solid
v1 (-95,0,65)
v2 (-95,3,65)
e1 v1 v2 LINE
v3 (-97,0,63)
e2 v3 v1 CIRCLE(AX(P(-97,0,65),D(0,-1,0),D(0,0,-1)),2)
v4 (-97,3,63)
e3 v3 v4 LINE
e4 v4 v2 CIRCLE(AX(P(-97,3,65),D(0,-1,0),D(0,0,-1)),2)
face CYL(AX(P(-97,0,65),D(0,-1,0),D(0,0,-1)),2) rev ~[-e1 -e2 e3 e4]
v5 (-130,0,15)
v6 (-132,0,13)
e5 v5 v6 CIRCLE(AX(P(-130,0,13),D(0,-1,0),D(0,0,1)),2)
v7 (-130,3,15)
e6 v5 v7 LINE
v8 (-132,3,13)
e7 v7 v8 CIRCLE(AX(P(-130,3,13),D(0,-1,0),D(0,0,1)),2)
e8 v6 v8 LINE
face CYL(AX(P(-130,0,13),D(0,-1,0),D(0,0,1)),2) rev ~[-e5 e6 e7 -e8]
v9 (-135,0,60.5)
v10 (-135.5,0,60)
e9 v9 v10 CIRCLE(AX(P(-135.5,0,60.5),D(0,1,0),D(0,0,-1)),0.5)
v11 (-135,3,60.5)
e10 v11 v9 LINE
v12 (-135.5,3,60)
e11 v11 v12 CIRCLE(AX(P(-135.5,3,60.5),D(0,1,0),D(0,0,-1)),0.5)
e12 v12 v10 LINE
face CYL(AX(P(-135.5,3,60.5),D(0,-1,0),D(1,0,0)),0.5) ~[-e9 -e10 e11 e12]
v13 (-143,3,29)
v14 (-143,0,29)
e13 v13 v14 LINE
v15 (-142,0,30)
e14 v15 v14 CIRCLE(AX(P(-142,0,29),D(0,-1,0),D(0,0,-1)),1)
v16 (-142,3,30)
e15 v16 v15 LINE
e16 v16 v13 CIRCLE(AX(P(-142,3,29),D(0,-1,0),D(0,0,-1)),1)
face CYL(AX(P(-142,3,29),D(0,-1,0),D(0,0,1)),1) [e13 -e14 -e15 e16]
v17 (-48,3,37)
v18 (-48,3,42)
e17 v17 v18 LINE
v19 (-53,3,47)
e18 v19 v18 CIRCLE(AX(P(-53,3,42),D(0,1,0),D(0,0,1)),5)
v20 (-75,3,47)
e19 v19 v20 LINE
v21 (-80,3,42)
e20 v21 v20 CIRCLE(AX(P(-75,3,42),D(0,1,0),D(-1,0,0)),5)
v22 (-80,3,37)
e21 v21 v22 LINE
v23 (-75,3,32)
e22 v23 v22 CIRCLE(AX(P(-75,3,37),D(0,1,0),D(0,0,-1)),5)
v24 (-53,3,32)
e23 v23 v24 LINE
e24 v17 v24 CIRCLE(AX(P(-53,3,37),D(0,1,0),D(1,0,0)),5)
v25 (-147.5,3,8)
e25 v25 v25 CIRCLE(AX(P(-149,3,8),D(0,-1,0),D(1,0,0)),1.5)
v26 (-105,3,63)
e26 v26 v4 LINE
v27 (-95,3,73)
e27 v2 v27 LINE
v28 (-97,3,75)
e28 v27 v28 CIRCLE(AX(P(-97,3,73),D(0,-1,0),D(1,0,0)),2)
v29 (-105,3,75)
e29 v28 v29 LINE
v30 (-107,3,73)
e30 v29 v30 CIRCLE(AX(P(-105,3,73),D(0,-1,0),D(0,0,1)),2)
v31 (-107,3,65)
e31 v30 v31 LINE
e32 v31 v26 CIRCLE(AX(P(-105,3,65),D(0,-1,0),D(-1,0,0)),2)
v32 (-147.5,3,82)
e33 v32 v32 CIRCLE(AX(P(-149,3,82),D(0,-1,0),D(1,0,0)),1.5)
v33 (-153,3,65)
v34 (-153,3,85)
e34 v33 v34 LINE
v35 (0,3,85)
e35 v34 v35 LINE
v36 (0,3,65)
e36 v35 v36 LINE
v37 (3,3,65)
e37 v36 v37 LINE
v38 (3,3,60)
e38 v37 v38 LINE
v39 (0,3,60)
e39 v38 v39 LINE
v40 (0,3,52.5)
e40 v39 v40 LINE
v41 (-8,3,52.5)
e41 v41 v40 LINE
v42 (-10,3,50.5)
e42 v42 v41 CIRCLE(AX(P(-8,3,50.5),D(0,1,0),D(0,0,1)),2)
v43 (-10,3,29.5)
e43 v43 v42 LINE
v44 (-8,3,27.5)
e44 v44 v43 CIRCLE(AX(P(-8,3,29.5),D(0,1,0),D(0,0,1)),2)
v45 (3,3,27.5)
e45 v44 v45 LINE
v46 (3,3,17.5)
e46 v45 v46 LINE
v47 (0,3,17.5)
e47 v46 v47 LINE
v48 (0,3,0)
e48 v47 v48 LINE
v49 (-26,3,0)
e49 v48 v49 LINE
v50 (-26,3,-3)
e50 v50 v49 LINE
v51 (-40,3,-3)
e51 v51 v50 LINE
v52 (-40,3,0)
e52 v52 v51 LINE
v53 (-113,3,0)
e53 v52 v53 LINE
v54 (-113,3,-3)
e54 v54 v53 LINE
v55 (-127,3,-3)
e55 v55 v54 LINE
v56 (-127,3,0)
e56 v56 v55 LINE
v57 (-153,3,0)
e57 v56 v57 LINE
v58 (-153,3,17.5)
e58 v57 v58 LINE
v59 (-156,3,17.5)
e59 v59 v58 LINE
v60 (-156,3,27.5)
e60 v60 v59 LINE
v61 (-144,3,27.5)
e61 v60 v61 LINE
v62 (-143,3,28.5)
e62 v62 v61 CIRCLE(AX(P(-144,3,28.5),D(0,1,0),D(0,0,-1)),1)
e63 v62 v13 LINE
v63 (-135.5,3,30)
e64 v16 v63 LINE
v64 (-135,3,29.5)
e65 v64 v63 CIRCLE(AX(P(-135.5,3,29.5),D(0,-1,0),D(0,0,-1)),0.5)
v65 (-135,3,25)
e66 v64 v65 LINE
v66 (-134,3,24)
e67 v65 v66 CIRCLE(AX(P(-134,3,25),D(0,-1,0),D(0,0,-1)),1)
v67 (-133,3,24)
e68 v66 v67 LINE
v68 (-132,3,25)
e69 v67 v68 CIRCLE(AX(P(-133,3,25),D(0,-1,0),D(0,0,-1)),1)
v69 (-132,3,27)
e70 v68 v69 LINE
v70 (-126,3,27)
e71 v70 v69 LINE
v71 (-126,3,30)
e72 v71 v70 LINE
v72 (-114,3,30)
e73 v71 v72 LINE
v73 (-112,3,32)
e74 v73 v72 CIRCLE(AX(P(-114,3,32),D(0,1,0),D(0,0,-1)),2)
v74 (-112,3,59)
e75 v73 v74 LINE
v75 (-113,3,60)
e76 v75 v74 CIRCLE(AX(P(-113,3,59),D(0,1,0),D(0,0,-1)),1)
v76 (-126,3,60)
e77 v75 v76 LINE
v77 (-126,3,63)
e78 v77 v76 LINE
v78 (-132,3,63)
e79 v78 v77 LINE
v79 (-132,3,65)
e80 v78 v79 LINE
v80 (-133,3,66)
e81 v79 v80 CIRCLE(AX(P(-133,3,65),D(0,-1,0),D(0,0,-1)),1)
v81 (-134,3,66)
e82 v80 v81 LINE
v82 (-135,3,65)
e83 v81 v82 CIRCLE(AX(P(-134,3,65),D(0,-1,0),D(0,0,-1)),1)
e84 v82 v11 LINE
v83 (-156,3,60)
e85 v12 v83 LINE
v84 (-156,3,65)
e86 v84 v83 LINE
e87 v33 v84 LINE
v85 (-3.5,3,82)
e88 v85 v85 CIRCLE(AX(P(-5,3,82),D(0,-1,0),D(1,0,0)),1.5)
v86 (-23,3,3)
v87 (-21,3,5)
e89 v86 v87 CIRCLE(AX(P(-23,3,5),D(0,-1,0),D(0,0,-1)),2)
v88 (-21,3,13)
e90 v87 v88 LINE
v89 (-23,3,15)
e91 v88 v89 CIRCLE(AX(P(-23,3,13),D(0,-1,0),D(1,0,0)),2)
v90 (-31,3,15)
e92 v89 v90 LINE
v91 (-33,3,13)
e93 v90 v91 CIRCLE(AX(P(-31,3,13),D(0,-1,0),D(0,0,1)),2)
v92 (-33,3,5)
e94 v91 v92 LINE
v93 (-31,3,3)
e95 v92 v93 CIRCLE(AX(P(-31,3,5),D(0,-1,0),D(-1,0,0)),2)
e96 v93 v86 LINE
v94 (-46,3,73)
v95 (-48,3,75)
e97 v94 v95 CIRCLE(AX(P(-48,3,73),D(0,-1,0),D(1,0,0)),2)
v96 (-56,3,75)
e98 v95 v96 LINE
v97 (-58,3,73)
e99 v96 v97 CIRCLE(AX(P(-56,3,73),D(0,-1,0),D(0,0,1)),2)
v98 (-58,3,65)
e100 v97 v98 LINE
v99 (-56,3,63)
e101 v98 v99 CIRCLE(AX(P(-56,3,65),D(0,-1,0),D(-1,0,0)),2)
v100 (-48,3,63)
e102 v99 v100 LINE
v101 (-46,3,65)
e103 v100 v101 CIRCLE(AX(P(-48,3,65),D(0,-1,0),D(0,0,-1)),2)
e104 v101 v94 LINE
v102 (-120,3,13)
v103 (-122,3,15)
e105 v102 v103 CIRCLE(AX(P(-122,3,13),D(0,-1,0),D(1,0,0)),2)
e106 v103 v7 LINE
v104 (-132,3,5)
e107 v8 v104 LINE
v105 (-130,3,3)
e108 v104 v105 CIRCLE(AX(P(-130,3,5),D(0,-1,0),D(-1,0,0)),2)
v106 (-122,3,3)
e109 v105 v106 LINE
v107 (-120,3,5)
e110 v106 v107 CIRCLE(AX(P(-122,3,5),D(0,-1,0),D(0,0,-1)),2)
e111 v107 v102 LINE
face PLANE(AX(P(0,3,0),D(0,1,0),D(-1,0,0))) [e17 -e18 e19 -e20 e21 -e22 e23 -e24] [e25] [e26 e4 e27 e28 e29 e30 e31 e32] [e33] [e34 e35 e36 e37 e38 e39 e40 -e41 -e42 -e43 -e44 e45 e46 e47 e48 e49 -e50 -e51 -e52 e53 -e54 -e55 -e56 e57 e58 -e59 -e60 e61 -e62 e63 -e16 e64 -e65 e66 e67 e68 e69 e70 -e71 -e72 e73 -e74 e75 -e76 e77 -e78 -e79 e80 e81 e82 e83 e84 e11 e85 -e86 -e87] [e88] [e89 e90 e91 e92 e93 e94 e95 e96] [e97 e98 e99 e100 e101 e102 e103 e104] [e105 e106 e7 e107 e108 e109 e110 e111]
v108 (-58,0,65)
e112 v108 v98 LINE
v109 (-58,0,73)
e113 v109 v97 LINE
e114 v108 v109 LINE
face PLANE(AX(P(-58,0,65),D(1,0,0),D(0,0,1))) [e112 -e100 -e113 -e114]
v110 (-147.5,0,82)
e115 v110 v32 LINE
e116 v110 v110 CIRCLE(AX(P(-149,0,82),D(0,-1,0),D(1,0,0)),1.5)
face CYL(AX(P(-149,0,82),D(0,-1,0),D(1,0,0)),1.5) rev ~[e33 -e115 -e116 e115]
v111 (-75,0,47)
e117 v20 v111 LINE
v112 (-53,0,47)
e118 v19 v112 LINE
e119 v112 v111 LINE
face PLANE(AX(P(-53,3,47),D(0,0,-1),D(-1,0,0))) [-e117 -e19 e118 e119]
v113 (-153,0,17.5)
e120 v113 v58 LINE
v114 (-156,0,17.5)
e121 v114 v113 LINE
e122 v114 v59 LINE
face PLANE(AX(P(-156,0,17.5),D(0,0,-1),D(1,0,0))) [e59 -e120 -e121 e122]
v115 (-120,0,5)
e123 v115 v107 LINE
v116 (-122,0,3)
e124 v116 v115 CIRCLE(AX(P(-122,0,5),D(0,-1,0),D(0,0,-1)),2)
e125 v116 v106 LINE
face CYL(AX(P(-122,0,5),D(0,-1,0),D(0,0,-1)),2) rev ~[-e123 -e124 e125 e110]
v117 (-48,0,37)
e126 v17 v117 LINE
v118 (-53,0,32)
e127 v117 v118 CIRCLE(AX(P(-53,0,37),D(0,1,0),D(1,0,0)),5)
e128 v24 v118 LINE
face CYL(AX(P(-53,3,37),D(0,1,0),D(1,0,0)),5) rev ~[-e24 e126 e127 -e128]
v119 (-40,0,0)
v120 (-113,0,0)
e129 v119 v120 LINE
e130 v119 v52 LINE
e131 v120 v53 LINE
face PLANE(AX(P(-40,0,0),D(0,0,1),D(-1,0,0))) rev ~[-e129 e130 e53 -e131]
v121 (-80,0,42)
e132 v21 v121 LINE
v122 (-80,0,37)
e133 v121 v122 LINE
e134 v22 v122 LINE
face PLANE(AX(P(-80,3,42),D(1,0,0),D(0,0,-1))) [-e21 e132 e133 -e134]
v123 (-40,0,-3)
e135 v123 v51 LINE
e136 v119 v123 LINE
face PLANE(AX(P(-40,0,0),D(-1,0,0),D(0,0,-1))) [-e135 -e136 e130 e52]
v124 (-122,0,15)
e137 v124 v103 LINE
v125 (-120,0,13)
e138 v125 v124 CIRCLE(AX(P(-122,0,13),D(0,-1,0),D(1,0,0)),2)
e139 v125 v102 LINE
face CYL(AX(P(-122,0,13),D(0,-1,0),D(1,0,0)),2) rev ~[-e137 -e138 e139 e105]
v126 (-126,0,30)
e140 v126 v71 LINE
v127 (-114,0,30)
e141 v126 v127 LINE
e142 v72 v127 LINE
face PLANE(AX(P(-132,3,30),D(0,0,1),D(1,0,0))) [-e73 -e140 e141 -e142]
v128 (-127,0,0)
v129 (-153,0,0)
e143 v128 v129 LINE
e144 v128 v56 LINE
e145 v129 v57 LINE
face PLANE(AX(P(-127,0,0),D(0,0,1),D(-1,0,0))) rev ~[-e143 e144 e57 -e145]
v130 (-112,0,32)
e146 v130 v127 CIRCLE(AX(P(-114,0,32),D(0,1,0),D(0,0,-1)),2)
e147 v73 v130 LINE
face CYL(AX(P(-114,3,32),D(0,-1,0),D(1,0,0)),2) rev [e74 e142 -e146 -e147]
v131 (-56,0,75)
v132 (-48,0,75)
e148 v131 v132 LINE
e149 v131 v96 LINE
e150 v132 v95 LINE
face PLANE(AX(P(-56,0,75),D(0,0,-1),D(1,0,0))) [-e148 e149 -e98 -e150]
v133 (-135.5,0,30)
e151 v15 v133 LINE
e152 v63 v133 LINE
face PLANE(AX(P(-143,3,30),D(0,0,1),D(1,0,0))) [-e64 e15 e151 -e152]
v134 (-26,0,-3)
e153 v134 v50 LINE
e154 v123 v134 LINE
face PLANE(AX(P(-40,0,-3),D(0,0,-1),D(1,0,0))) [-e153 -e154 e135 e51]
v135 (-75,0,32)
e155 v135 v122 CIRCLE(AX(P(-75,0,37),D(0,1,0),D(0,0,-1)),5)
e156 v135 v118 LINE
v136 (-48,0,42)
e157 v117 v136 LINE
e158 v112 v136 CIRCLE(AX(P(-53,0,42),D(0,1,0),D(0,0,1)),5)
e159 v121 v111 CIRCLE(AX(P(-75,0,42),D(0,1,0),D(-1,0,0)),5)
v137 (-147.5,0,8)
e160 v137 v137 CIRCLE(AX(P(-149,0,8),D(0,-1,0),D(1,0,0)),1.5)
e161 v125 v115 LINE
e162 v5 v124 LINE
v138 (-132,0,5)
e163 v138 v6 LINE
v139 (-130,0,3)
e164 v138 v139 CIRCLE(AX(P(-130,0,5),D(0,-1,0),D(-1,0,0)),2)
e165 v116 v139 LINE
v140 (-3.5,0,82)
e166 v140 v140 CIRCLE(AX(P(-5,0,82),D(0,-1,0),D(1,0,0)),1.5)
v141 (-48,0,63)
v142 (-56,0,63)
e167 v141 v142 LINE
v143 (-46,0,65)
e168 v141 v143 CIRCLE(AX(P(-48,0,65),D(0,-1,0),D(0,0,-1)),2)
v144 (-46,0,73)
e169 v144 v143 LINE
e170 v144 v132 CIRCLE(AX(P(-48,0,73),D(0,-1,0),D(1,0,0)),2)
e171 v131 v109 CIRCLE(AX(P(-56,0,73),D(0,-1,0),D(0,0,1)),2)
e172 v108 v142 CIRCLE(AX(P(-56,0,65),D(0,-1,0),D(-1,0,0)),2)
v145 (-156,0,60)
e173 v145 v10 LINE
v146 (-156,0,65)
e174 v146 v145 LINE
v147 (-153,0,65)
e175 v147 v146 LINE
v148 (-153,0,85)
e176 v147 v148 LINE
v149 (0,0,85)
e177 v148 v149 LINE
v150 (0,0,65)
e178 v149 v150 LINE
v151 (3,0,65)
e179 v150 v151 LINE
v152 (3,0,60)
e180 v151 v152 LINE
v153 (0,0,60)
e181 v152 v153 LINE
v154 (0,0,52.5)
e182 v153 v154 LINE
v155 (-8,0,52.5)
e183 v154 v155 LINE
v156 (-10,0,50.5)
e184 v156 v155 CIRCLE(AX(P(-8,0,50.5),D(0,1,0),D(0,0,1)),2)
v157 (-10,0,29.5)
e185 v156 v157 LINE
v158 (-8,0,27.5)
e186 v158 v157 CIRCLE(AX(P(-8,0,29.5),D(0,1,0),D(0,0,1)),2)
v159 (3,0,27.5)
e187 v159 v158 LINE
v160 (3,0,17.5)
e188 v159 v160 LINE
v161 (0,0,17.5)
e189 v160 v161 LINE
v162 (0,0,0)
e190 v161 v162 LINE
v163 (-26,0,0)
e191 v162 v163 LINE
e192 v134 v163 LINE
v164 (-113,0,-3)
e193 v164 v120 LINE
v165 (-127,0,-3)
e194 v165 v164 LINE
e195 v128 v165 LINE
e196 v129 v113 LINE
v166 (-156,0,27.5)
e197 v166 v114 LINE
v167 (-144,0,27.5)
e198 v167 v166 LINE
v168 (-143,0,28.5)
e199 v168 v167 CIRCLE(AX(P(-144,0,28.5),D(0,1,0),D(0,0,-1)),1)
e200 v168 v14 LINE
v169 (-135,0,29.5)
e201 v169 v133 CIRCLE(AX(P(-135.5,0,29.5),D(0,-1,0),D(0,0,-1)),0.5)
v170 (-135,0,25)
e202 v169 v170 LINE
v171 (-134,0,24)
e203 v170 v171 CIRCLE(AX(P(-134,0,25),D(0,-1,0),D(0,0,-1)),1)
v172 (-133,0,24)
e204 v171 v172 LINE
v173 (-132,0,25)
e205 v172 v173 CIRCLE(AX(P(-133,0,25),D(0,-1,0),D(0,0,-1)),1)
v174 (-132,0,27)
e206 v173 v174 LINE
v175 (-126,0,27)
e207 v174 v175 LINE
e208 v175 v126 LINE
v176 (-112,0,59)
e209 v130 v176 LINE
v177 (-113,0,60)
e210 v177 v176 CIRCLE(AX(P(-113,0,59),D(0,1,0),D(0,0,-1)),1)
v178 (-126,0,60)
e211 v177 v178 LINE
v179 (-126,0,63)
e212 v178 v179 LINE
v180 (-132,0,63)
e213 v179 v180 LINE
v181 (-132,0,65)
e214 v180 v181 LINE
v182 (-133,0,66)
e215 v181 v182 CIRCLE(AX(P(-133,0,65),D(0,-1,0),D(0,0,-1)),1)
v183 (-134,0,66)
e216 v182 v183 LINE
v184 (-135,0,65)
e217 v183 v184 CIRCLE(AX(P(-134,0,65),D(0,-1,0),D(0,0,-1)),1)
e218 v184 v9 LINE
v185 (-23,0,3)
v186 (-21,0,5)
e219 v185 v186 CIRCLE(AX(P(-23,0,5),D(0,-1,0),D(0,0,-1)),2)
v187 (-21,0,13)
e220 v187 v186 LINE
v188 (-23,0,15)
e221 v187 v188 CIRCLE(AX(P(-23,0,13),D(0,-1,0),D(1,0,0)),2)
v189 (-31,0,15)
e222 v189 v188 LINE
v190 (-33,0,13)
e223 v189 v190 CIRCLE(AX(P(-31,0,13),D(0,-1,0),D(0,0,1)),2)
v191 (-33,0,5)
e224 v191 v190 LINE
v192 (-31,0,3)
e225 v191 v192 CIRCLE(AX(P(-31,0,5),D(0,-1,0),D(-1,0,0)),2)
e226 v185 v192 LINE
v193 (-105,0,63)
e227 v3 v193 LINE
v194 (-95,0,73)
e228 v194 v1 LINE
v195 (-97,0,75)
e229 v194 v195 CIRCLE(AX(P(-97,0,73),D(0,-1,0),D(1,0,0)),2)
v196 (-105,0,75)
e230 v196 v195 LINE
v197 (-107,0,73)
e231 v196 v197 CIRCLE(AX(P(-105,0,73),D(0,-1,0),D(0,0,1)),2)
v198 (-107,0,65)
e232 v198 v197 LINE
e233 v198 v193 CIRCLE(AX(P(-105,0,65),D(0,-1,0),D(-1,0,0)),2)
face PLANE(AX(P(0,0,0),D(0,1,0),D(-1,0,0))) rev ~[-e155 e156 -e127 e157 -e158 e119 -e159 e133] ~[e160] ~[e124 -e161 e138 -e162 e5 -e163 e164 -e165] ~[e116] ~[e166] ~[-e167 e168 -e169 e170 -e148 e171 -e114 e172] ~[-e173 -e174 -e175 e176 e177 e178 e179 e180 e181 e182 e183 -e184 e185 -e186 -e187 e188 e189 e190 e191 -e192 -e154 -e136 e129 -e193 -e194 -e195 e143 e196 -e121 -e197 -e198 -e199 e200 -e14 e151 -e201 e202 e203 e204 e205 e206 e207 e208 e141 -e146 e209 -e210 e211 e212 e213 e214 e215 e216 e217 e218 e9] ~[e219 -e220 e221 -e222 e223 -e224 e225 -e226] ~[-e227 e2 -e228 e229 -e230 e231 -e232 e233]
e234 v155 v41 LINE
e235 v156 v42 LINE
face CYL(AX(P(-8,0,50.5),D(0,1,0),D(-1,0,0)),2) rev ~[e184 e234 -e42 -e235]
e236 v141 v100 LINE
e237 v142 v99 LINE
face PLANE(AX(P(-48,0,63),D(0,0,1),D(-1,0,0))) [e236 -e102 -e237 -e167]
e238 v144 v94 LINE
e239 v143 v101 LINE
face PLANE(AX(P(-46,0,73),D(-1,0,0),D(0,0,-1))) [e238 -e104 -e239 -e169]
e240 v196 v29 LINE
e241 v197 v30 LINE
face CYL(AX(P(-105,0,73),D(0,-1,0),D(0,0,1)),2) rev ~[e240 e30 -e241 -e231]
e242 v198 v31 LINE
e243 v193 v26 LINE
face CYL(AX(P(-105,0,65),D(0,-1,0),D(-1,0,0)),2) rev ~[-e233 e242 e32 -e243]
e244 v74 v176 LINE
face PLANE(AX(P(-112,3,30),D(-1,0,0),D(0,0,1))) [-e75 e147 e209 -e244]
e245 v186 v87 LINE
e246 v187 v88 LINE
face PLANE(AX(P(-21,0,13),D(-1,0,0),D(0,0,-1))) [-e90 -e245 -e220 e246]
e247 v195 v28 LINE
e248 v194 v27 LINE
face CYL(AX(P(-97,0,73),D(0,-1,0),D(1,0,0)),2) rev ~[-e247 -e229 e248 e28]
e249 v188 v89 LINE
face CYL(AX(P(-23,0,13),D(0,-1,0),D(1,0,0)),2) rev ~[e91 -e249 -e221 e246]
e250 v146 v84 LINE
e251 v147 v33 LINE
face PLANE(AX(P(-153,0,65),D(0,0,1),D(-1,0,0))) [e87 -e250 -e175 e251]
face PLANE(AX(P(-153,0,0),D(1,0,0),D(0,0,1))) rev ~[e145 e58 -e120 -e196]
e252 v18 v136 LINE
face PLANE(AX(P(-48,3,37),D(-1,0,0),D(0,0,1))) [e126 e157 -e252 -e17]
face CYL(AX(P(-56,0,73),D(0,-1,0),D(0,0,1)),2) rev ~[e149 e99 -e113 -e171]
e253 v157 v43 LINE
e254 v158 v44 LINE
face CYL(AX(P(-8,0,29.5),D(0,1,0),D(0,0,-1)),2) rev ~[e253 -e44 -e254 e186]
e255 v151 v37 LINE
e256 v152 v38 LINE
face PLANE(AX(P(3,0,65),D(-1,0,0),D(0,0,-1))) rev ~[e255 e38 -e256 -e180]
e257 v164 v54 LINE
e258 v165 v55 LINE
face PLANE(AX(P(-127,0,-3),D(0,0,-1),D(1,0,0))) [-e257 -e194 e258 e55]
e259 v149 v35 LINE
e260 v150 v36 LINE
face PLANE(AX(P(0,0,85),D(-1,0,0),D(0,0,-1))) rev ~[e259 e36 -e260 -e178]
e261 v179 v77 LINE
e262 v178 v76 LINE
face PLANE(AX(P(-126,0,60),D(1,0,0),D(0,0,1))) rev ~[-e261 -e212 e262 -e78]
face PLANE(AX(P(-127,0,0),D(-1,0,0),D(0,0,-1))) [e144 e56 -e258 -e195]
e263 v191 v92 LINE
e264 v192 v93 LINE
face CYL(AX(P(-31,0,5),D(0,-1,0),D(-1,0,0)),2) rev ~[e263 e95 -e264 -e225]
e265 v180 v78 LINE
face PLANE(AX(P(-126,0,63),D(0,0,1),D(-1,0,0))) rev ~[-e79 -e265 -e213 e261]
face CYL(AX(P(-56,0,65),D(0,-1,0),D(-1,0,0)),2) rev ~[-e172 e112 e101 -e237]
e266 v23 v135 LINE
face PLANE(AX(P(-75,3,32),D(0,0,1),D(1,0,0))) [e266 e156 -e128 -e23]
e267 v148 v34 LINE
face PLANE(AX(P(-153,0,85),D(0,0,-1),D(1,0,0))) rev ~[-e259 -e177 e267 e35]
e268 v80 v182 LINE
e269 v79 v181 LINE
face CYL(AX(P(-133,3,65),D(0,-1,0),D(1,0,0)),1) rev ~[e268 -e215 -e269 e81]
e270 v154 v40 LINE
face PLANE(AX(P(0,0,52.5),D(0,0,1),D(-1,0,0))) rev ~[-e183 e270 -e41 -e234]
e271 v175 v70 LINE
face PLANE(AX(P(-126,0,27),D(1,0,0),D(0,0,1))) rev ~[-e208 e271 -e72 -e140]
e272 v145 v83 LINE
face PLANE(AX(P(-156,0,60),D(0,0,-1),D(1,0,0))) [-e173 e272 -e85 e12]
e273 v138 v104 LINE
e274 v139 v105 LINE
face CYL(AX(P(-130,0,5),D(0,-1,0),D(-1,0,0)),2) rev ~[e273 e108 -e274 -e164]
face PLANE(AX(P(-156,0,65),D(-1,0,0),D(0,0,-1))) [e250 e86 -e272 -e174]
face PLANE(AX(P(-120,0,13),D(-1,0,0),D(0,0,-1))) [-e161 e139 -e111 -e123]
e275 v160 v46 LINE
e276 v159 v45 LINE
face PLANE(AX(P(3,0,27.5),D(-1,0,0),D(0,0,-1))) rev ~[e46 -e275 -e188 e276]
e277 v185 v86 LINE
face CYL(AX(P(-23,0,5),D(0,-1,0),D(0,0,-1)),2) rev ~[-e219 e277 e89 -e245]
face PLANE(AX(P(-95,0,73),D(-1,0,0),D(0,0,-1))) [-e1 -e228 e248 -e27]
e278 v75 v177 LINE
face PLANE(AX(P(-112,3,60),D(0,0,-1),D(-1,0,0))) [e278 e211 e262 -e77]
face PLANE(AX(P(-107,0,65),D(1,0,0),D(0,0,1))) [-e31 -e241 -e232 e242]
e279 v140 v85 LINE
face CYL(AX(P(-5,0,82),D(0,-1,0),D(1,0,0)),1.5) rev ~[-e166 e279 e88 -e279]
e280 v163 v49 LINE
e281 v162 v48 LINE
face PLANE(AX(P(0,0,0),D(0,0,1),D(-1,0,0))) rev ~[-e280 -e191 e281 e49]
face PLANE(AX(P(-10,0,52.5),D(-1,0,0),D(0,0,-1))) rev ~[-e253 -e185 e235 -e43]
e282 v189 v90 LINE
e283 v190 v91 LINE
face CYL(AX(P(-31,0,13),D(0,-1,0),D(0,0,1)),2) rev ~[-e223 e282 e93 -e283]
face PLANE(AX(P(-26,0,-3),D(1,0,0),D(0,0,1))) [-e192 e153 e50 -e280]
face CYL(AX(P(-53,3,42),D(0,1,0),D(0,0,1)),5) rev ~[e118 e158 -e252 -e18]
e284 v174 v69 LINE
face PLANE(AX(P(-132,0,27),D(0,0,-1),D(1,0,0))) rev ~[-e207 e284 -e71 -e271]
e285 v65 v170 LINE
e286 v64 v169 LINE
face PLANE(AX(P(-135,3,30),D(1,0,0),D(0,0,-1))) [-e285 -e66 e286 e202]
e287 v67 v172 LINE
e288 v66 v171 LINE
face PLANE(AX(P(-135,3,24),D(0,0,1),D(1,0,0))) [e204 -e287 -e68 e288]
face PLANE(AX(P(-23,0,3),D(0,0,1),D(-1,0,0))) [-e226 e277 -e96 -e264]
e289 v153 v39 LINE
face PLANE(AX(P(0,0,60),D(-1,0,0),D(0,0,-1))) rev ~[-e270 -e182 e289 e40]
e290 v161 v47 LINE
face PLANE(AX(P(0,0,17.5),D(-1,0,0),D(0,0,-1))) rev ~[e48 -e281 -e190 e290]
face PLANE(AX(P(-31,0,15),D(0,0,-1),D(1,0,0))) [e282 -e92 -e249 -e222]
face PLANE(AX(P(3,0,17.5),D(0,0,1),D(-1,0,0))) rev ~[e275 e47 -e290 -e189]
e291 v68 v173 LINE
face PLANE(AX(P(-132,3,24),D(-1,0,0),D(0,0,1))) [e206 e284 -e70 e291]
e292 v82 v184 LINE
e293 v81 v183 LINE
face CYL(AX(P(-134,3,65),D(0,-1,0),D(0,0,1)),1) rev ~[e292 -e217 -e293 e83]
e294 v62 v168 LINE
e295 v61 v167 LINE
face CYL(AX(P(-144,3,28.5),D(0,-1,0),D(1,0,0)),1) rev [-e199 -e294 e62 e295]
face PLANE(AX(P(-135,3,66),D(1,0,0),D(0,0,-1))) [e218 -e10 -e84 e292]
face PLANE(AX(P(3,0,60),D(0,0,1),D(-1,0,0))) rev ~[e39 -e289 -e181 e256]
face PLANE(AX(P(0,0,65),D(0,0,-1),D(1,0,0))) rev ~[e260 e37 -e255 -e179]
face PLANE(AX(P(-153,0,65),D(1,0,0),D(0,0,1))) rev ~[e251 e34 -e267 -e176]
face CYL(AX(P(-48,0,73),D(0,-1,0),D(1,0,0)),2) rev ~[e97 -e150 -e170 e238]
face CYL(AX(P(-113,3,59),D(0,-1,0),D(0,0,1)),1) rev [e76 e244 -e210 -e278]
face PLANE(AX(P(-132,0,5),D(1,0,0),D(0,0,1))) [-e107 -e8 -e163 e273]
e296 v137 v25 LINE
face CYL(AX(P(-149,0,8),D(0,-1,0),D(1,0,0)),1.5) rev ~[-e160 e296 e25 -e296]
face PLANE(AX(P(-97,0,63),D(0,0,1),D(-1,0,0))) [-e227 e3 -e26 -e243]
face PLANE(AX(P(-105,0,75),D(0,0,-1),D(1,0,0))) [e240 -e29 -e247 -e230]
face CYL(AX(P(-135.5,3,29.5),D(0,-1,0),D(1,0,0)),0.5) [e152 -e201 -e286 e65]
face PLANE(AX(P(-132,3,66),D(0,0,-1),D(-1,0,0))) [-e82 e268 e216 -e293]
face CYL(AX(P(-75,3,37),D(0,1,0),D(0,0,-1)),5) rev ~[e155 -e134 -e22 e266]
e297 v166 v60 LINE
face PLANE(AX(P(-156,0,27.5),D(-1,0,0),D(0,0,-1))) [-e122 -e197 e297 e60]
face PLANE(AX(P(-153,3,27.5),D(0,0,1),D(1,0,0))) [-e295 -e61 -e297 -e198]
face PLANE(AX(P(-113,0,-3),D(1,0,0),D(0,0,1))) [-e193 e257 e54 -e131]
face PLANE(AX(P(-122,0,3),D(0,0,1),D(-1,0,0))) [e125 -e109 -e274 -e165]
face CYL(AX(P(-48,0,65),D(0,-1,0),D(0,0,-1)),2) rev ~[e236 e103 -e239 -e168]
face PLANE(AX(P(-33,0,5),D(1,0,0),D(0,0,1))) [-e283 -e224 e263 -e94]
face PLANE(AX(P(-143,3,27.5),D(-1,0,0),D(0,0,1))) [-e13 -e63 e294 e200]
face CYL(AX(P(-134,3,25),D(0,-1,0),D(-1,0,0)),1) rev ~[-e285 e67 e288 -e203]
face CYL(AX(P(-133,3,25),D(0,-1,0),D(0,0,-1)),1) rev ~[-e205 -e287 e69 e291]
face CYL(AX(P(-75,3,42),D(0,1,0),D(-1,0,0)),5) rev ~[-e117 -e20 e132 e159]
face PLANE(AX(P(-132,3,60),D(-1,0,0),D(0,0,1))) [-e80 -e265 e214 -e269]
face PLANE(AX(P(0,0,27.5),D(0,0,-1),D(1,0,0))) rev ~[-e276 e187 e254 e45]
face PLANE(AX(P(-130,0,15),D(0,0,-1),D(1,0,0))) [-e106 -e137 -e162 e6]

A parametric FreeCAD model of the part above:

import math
import FreeCAD as App
import Part
import Sketcher

V = App.Vector


def edges_at(feature, points):
    """Names of the edges that pass closest to the given points."""
    edges = feature.Shape.Edges
    near = lambda p: min(range(len(edges)), key=lambda i: edges[i].distToShape(Part.Vertex(*p))[0])
    return sorted({f"Edge{near(p) + 1}" for p in points})


def add_polygon(sketch, points):
    """Adds a closed chain of lines whose ends are joined by coincident constraints."""
    first, n = sketch.GeometryCount, len(points)
    for a, b in zip(points, points[1:] + points[:1]):
        sketch.addGeometry(Part.LineSegment(App.Vector(*a, 0), App.Vector(*b, 0)), False)
    for i in range(n):
        sketch.addConstraint(Sketcher.Constraint("Coincident", first + i, 2, first + (i + 1) % n, 1))

doc = App.newDocument("Part")
body = doc.addObject("PartDesign::Body", "Body")

# Sketch on XZ plane
sketch1 = body.newObject("Sketcher::SketchObject", "Sketch")
sketch1.AttachmentSupport = (doc.getObject("XZ_Plane"), [""])
sketch1.MapMode = "FlatFace"
add_polygon(sketch1, [(-153, 65), (-153, 85), (0, 85), (0, 65), (3, 65), (3, 60), (0, 60), (0, 27.5), (3, 27.5), (3, 17.5), (0, 17.5), (0, 0), (-26, 0), (-26, -3), (-40, -3), (-40, 0), (-113, 0), (-113, -3), (-127, -3), (-127, 0), (-153, 0), (-153, 17.5), (-156, 17.5), (-156, 27.5), (-153, 27.5), (-153, 60), (-156, 60), (-156, 65)])  # lines 0-27
sketch1.addConstraint(Sketcher.Constraint("Vertical", 0))
sketch1.addConstraint(Sketcher.Constraint("Horizontal", 1))
sketch1.addConstraint(Sketcher.Constraint("Vertical", 2))
sketch1.addConstraint(Sketcher.Constraint("Horizontal", 3))
sketch1.addConstraint(Sketcher.Constraint("Vertical", 4))
sketch1.addConstraint(Sketcher.Constraint("Horizontal", 5))
sketch1.addConstraint(Sketcher.Constraint("Vertical", 6))
sketch1.addConstraint(Sketcher.Constraint("Horizontal", 7))
sketch1.addConstraint(Sketcher.Constraint("Vertical", 8))
sketch1.addConstraint(Sketcher.Constraint("Horizontal", 9))
sketch1.addConstraint(Sketcher.Constraint("Vertical", 10))
sketch1.addConstraint(Sketcher.Constraint("Horizontal", 11))
sketch1.addConstraint(Sketcher.Constraint("Vertical", 12))
sketch1.addConstraint(Sketcher.Constraint("Horizontal", 13))
sketch1.addConstraint(Sketcher.Constraint("Vertical", 14))
sketch1.addConstraint(Sketcher.Constraint("Horizontal", 15))
sketch1.addConstraint(Sketcher.Constraint("Vertical", 16))
sketch1.addConstraint(Sketcher.Constraint("Horizontal", 17))
sketch1.addConstraint(Sketcher.Constraint("Vertical", 18))
sketch1.addConstraint(Sketcher.Constraint("Horizontal", 19))
sketch1.addConstraint(Sketcher.Constraint("Vertical", 20))
sketch1.addConstraint(Sketcher.Constraint("Horizontal", 21))
sketch1.addConstraint(Sketcher.Constraint("Vertical", 22))
sketch1.addConstraint(Sketcher.Constraint("Horizontal", 23))
sketch1.addConstraint(Sketcher.Constraint("Vertical", 24))
sketch1.addConstraint(Sketcher.Constraint("Horizontal", 25))
sketch1.addConstraint(Sketcher.Constraint("Vertical", 26))
sketch1.addConstraint(Sketcher.Constraint("Horizontal", 27))
sketch1.addConstraint(Sketcher.Constraint("Coincident", 10, 2, -1, 1))
sketch1.addConstraint(Sketcher.Constraint("PointOnObject", 1, 2, -2))
sketch1.addConstraint(Sketcher.Constraint("PointOnObject", 5, 2, -2))
sketch1.addConstraint(Sketcher.Constraint("PointOnObject", 14, 2, -1))
sketch1.addConstraint(Sketcher.Constraint("PointOnObject", 18, 2, -1))
sketch1.addConstraint(Sketcher.Constraint("Horizontal", 13, 2, 16, 2))
sketch1.addConstraint(Sketcher.Constraint("Horizontal", 9, 2, 20, 2))
sketch1.addConstraint(Sketcher.Constraint("Horizontal", 7, 2, 22, 2))
sketch1.addConstraint(Sketcher.Constraint("Horizontal", 5, 2, 24, 2))
sketch1.addConstraint(Sketcher.Constraint("Horizontal", 3, 2, 26, 2))
sketch1.addConstraint(Sketcher.Constraint("Vertical", 4, 2, 7, 2))
sketch1.addConstraint(Sketcher.Constraint("Vertical", 0, 2, 19, 2))
sketch1.addConstraint(Sketcher.Constraint("Vertical", 20, 2, 23, 2))
sketch1.addConstraint(Sketcher.Constraint("Vertical", 22, 2, 25, 2))
sketch1.addConstraint(Sketcher.Constraint("Equal", 13, 17))
sketch1.addConstraint(Sketcher.Constraint("Equal", 11, 19))
sketch1.addConstraint(Sketcher.Constraint("Equal", 9, 21))
sketch1.addConstraint(Sketcher.Constraint("Equal", 27, 12))
sketch1.addConstraint(Sketcher.Constraint("DistanceX", 1, 1, 1, 2, 153.0))
sketch1.addConstraint(Sketcher.Constraint("DistanceX", 3, 1, 3, 2, 3.0))
sketch1.addConstraint(Sketcher.Constraint("DistanceX", 11, 2, 11, 1, 26.0))
sketch1.addConstraint(Sketcher.Constraint("DistanceX", 13, 2, 13, 1, 14.0))
sketch1.addConstraint(Sketcher.Constraint("DistanceY", 0, 1, 0, 2, 20.0))
sketch1.addConstraint(Sketcher.Constraint("DistanceY", 4, 2, 4, 1, 5.0))
sketch1.addConstraint(Sketcher.Constraint("DistanceY", 8, 2, 8, 1, 10.0))
sketch1.addConstraint(Sketcher.Constraint("DistanceY", -1, 1, 0, 2, 85.0))
sketch1.addConstraint(Sketcher.Constraint("DistanceY", 6, 2, 6, 1, 32.5))
pad1 = body.newObject("PartDesign::Pad", "Pad")
pad1.Profile = sketch1
pad1.Length = 3
pad1.Reversed = True

# Sketch on XZ plane
sketch2 = body.newObject("Sketcher::SketchObject", "Sketch001")
sketch2.AttachmentSupport = (doc.getObject("XZ_Plane"), [""])
sketch2.MapMode = "FlatFace"
sketch2.AttachmentOffset = App.Placement(V(0, 0, -3), App.Rotation())
add_polygon(sketch2, [(-143, 27.5), (-153, 27.5), (-153, 60), (-135, 60), (-135, 66), (-132, 66), (-132, 60), (-112, 60), (-112, 30), (-132, 30), (-132, 24), (-135, 24), (-135, 30), (-143, 30)])  # lines 0-13
sketch2.addConstraint(Sketcher.Constraint("Horizontal", 0))
sketch2.addConstraint(Sketcher.Constraint("Vertical", 1))
sketch2.addConstraint(Sketcher.Constraint("Horizontal", 2))
sketch2.addConstraint(Sketcher.Constraint("Vertical", 3))
sketch2.addConstraint(Sketcher.Constraint("Horizontal", 4))
sketch2.addConstraint(Sketcher.Constraint("Vertical", 5))
sketch2.addConstraint(Sketcher.Constraint("Horizontal", 6))
sketch2.addConstraint(Sketcher.Constraint("Vertical", 7))
sketch2.addConstraint(Sketcher.Constraint("Horizontal", 8))
sketch2.addConstraint(Sketcher.Constraint("Vertical", 9))
sketch2.addConstraint(Sketcher.Constraint("Horizontal", 10))
sketch2.addConstraint(Sketcher.Constraint("Vertical", 11))
sketch2.addConstraint(Sketcher.Constraint("Horizontal", 12))
sketch2.addConstraint(Sketcher.Constraint("Vertical", 13))
sketch2.addConstraint(Sketcher.Constraint("Horizontal", 2, 2, 5, 2))
sketch2.addConstraint(Sketcher.Constraint("Horizontal", 8, 2, 11, 2))
sketch2.addConstraint(Sketcher.Constraint("Vertical", 5, 2, 8, 2))
sketch2.addConstraint(Sketcher.Constraint("Vertical", 3, 2, 10, 2))
sketch2.addConstraint(Sketcher.Constraint("Equal", 5, 9))
sketch2.addConstraint(Sketcher.Constraint("DistanceX", 0, 2, 0, 1, 10.0))
sketch2.addConstraint(Sketcher.Constraint("DistanceX", 4, 1, 4, 2, 3.0))
sketch2.addConstraint(Sketcher.Constraint("DistanceX", 6, 1, 6, 2, 20.0))
sketch2.addConstraint(Sketcher.Constraint("DistanceY", 3, 1, 3, 2, 6.0))
sketch2.addConstraint(Sketcher.Constraint("DistanceY", 13, 2, 13, 1, 2.5))
sketch2.addConstraint(Sketcher.Constraint("DistanceX", 1, 2, 6, 2, 41.0))
sketch2.addConstraint(Sketcher.Constraint("DistanceY", 7, 2, 7, 1, 30.0))
sketch2.addConstraint(Sketcher.Constraint("DistanceX", 0, 2, -1, 1, 153.0))
sketch2.addConstraint(Sketcher.Constraint("DistanceY", -1, 1, 1, 2, 60.0))
pocket1 = body.newObject("PartDesign::Pocket", "Pocket")
pocket1.Profile = sketch2
pocket1.Type = "ThroughAll"
pocket1.Reversed = True

# Sketch on XZ plane
sketch3 = body.newObject("Sketcher::SketchObject", "Sketch002")
sketch3.AttachmentSupport = (doc.getObject("XZ_Plane"), [""])
sketch3.MapMode = "FlatFace"
sketch3.AttachmentOffset = App.Placement(V(0, 0, -3), App.Rotation())
sketch3.addGeometry(Part.LineSegment(V(-48, 42, 0), V(-48, 37, 0)), False)
sketch3.addGeometry(Part.ArcOfCircle(Part.Circle(V(-53, 37, 0), V(0, 0, 1), 5), math.radians(-90), math.radians(0)), False)
sketch3.addGeometry(Part.LineSegment(V(-53, 32, 0), V(-75, 32, 0)), False)
sketch3.addGeometry(Part.ArcOfCircle(Part.Circle(V(-75, 37, 0), V(0, 0, 1), 5), math.radians(180), math.radians(270)), False)
sketch3.addGeometry(Part.LineSegment(V(-80, 37, 0), V(-80, 42, 0)), False)
sketch3.addGeometry(Part.ArcOfCircle(Part.Circle(V(-75, 42, 0), V(0, 0, 1), 5), math.radians(90), math.radians(180)), False)
sketch3.addGeometry(Part.LineSegment(V(-75, 47, 0), V(-53, 47, 0)), False)
sketch3.addGeometry(Part.ArcOfCircle(Part.Circle(V(-53, 42, 0), V(0, 0, 1), 5), math.radians(0), math.radians(90)), False)
sketch3.addConstraint(Sketcher.Constraint("Tangent", 0, 2, 1, 2))
sketch3.addConstraint(Sketcher.Constraint("Tangent", 1, 1, 2, 1))
sketch3.addConstraint(Sketcher.Constraint("Tangent", 2, 2, 3, 2))
sketch3.addConstraint(Sketcher.Constraint("Tangent", 3, 1, 4, 1))
sketch3.addConstraint(Sketcher.Constraint("Tangent", 4, 2, 5, 2))
sketch3.addConstraint(Sketcher.Constraint("Tangent", 5, 1, 6, 1))
sketch3.addConstraint(Sketcher.Constraint("Tangent", 6, 2, 7, 2))
sketch3.addConstraint(Sketcher.Constraint("Tangent", 7, 1, 0, 1))
sketch3.addConstraint(Sketcher.Constraint("Vertical", 0))
sketch3.addConstraint(Sketcher.Constraint("Horizontal", 2))
sketch3.addConstraint(Sketcher.Constraint("Vertical", 4))
sketch3.addConstraint(Sketcher.Constraint("Horizontal", 6))
sketch3.addConstraint(Sketcher.Constraint("Equal", 1, 3))
sketch3.addConstraint(Sketcher.Constraint("Equal", 3, 5))
sketch3.addConstraint(Sketcher.Constraint("Equal", 5, 7))
sketch3.addConstraint(Sketcher.Constraint("Radius", 1, 5.0))
sketch3.addConstraint(Sketcher.Constraint("DistanceY", 0, 2, 0, 1, 5.0))
sketch3.addConstraint(Sketcher.Constraint("DistanceX", 0, 2, -1, 1, 48.0))
sketch3.addConstraint(Sketcher.Constraint("DistanceY", -1, 1, 1, 1, 32.0))
sketch3.addConstraint(Sketcher.Constraint("DistanceX", 2, 2, 2, 1, 22.0))
pocket2 = body.newObject("PartDesign::Pocket", "Pocket001")
pocket2.Profile = sketch3
pocket2.Type = "ThroughAll"
pocket2.Reversed = True

# Sketch on XZ plane
sketch4 = body.newObject("Sketcher::SketchObject", "Sketch003")
sketch4.AttachmentSupport = (doc.getObject("XZ_Plane"), [""])
sketch4.MapMode = "FlatFace"
add_polygon(sketch4, [(-10, 27.5), (0, 27.5), (0, 52.5), (-10, 52.5)])  # lines 0-3
sketch4.addConstraint(Sketcher.Constraint("Horizontal", 0))
sketch4.addConstraint(Sketcher.Constraint("Vertical", 1))
sketch4.addConstraint(Sketcher.Constraint("Horizontal", 2))
sketch4.addConstraint(Sketcher.Constraint("Vertical", 3))
sketch4.addConstraint(Sketcher.Constraint("PointOnObject", 0, 2, -2))
sketch4.addConstraint(Sketcher.Constraint("DistanceX", 0, 1, 0, 2, 10.0))
sketch4.addConstraint(Sketcher.Constraint("DistanceY", 1, 1, 1, 2, 25.0))
sketch4.addConstraint(Sketcher.Constraint("DistanceY", -1, 1, 0, 2, 27.5))
pocket3 = body.newObject("PartDesign::Pocket", "Pocket002")
pocket3.Profile = sketch4
pocket3.Type = "ThroughAll"
doc.recompute()

fillet = body.newObject("PartDesign::Fillet", "Fillet")
fillet.Base = (pocket3, edges_at(pocket3, [(-10, 1.5, 52.5), (-10, 1.5, 27.5)]))
fillet.Radius = 2
doc.recompute()

fillet2 = body.newObject("PartDesign::Fillet", "Fillet001")
fillet2.Base = (fillet, edges_at(fillet, [(-112, 1.5, 60)]))
fillet2.Radius = 1

# Sketch on XZ plane
sketch5 = body.newObject("Sketcher::SketchObject", "Sketch004")
sketch5.AttachmentSupport = (doc.getObject("XZ_Plane"), [""])
sketch5.MapMode = "FlatFace"
sketch5.addGeometry(Part.Circle(V(-149, 82, 0), V(0, 0, 1), 1.5), False)
sketch5.addGeometry(Part.Circle(V(-149, 8, 0), V(0, 0, 1), 1.5), False)
sketch5.addGeometry(Part.Circle(V(-5, 82, 0), V(0, 0, 1), 1.5), False)
sketch5.addGeometry(Part.Circle(V(-29, 8, 0), V(0, 0, 1), 1.5), False)
sketch5.addConstraint(Sketcher.Constraint("Equal", 0, 1))
sketch5.addConstraint(Sketcher.Constraint("Equal", 1, 2))
sketch5.addConstraint(Sketcher.Constraint("Equal", 2, 3))
sketch5.addConstraint(Sketcher.Constraint("Horizontal", 0, 3, 2, 3))
sketch5.addConstraint(Sketcher.Constraint("Horizontal", 1, 3, 3, 3))
sketch5.addConstraint(Sketcher.Constraint("Vertical", 0, 3, 1, 3))
sketch5.addConstraint(Sketcher.Constraint("Diameter", 0, 3.0))
sketch5.addConstraint(Sketcher.Constraint("DistanceY", 1, 3, 0, 3, 74.0))
sketch5.addConstraint(Sketcher.Constraint("DistanceX", 0, 3, 2, 3, 144.0))
sketch5.addConstraint(Sketcher.Constraint("DistanceX", 3, 3, 2, 3, 24.0))
sketch5.addConstraint(Sketcher.Constraint("DistanceX", 0, 3, -1, 1, 149.0))
sketch5.addConstraint(Sketcher.Constraint("DistanceY", -1, 1, 0, 3, 82.0))
pocket4 = body.newObject("PartDesign::Pocket", "Pocket003")
pocket4.Profile = sketch5
pocket4.Type = "ThroughAll"
doc.recompute()

fillet3 = body.newObject("PartDesign::Fillet", "Fillet002")
fillet3.Base = (pocket4, edges_at(pocket4, [(-112, 1.5, 30)]))
fillet3.Radius = 2

# Sketch on XZ plane
sketch6 = body.newObject("Sketcher::SketchObject", "Sketch005")
sketch6.AttachmentSupport = (doc.getObject("XZ_Plane"), [""])
sketch6.MapMode = "FlatFace"
sketch6.addGeometry(Part.LineSegment(V(-122, 15, 0), V(-130, 15, 0)), False)
sketch6.addGeometry(Part.ArcOfCircle(Part.Circle(V(-130, 13, 0), V(0, 0, 1), 2), math.radians(90), math.radians(180)), False)
sketch6.addGeometry(Part.LineSegment(V(-132, 13, 0), V(-132, 5, 0)), False)
sketch6.addGeometry(Part.ArcOfCircle(Part.Circle(V(-130, 5, 0), V(0, 0, 1), 2), math.radians(180), math.radians(270)), False)
sketch6.addGeometry(Part.LineSegment(V(-130, 3, 0), V(-122, 3, 0)), False)
sketch6.addGeometry(Part.ArcOfCircle(Part.Circle(V(-122, 5, 0), V(0, 0, 1), 2), math.radians(-90), math.radians(0)), False)
sketch6.addGeometry(Part.LineSegment(V(-120, 5, 0), V(-120, 13, 0)), False)
sketch6.addGeometry(Part.ArcOfCircle(Part.Circle(V(-122, 13, 0), V(0, 0, 1), 2), math.radians(0), math.radians(90)), False)
sketch6.addGeometry(Part.LineSegment(V(-23, 15, 0), V(-31, 15, 0)), False)
sketch6.addGeometry(Part.ArcOfCircle(Part.Circle(V(-31, 13, 0), V(0, 0, 1), 2), math.radians(90), math.radians(180)), False)
sketch6.addGeometry(Part.LineSegment(V(-33, 13, 0), V(-33, 5, 0)), False)
sketch6.addGeometry(Part.ArcOfCircle(Part.Circle(V(-31, 5, 0), V(0, 0, 1), 2), math.radians(180), math.radians(270)), False)
sketch6.addGeometry(Part.LineSegment(V(-31, 3, 0), V(-23, 3, 0)), False)
sketch6.addGeometry(Part.ArcOfCircle(Part.Circle(V(-23, 5, 0), V(0, 0, 1), 2), math.radians(-90), math.radians(0)), False)
sketch6.addGeometry(Part.LineSegment(V(-21, 5, 0), V(-21, 13, 0)), False)
sketch6.addGeometry(Part.ArcOfCircle(Part.Circle(V(-23, 13, 0), V(0, 0, 1), 2), math.radians(0), math.radians(90)), False)
sketch6.addConstraint(Sketcher.Constraint("Tangent", 0, 2, 1, 1))
sketch6.addConstraint(Sketcher.Constraint("Tangent", 1, 2, 2, 1))
sketch6.addConstraint(Sketcher.Constraint("Tangent", 2, 2, 3, 1))
sketch6.addConstraint(Sketcher.Constraint("Tangent", 3, 2, 4, 1))
sketch6.addConstraint(Sketcher.Constraint("Tangent", 4, 2, 5, 1))
sketch6.addConstraint(Sketcher.Constraint("Tangent", 5, 2, 6, 1))
sketch6.addConstraint(Sketcher.Constraint("Tangent", 6, 2, 7, 1))
sketch6.addConstraint(Sketcher.Constraint("Tangent", 7, 2, 0, 1))
sketch6.addConstraint(Sketcher.Constraint("Tangent", 8, 2, 9, 1))
sketch6.addConstraint(Sketcher.Constraint("Tangent", 9, 2, 10, 1))
sketch6.addConstraint(Sketcher.Constraint("Tangent", 10, 2, 11, 1))
sketch6.addConstraint(Sketcher.Constraint("Tangent", 11, 2, 12, 1))
sketch6.addConstraint(Sketcher.Constraint("Tangent", 12, 2, 13, 1))
sketch6.addConstraint(Sketcher.Constraint("Tangent", 13, 2, 14, 1))
sketch6.addConstraint(Sketcher.Constraint("Tangent", 14, 2, 15, 1))
sketch6.addConstraint(Sketcher.Constraint("Tangent", 15, 2, 8, 1))
sketch6.addConstraint(Sketcher.Constraint("Horizontal", 0))
sketch6.addConstraint(Sketcher.Constraint("Vertical", 2))
sketch6.addConstraint(Sketcher.Constraint("Horizontal", 4))
sketch6.addConstraint(Sketcher.Constraint("Vertical", 6))
sketch6.addConstraint(Sketcher.Constraint("Horizontal", 8))
sketch6.addConstraint(Sketcher.Constraint("Vertical", 10))
sketch6.addConstraint(Sketcher.Constraint("Horizontal", 12))
sketch6.addConstraint(Sketcher.Constraint("Vertical", 14))
sketch6.addConstraint(Sketcher.Constraint("Equal", 1, 3))
sketch6.addConstraint(Sketcher.Constraint("Equal", 3, 5))
sketch6.addConstraint(Sketcher.Constraint("Equal", 5, 7))
sketch6.addConstraint(Sketcher.Constraint("Equal", 7, 9))
sketch6.addConstraint(Sketcher.Constraint("Equal", 9, 11))
sketch6.addConstraint(Sketcher.Constraint("Equal", 11, 13))
sketch6.addConstraint(Sketcher.Constraint("Equal", 13, 15))
sketch6.addConstraint(Sketcher.Constraint("Horizontal", 7, 3, 9, 3))
sketch6.addConstraint(Sketcher.Constraint("Horizontal", 5, 3, 11, 3))
sketch6.addConstraint(Sketcher.Constraint("Equal", 4, 8))
sketch6.addConstraint(Sketcher.Constraint("Equal", 12, 2))
sketch6.addConstraint(Sketcher.Constraint("Radius", 1, 2.0))
sketch6.addConstraint(Sketcher.Constraint("DistanceY", -1, 1, 3, 2, 3.0))
sketch6.addConstraint(Sketcher.Constraint("DistanceX", 13, 2, -1, 1, 21.0))
sketch6.addConstraint(Sketcher.Constraint("DistanceX", 0, 2, 0, 1, 8.0))
sketch6.addConstraint(Sketcher.Constraint("DistanceX", 1, 3, -1, 1, 130.0))
pocket5 = body.newObject("PartDesign::Pocket", "Pocket004")
pocket5.Profile = sketch6
pocket5.Type = "ThroughAll"
doc.recompute()

fillet4 = body.newObject("PartDesign::Fillet", "Fillet003")
fillet4.Base = (pocket5, edges_at(pocket5, [(-143, 1.5, 30), (-143, 1.5, 27.5)]))
fillet4.Radius = 1
doc.recompute()

fillet5 = body.newObject("PartDesign::Fillet", "Fillet004")
fillet5.Base = (fillet4, edges_at(fillet4, [(-132, 1.5, 66), (-132, 1.5, 24)]))
fillet5.Radius = 1
doc.recompute()

fillet6 = body.newObject("PartDesign::Fillet", "Fillet005")
fillet6.Base = (fillet5, edges_at(fillet5, [(-135, 1.5, 60), (-135, 1.5, 30)]))
fillet6.Radius = 0.5
doc.recompute()

fillet7 = body.newObject("PartDesign::Fillet", "Fillet006")
fillet7.Base = (fillet6, edges_at(fillet6, [(-135, 1.5, 24), (-135, 1.5, 66)]))
fillet7.Radius = 1

# Sketch on XZ plane
sketch7 = body.newObject("Sketcher::SketchObject", "Sketch006")
sketch7.AttachmentSupport = (doc.getObject("XZ_Plane"), [""])
sketch7.MapMode = "FlatFace"
add_polygon(sketch7, [(-126, 27), (-126, 30), (-132, 30), (-132, 27)])  # lines 0-3
add_polygon(sketch7, [(-132, 63), (-132, 60), (-126, 60), (-126, 63)])  # lines 4-7
sketch7.addConstraint(Sketcher.Constraint("Vertical", 0))
sketch7.addConstraint(Sketcher.Constraint("Horizontal", 1))
sketch7.addConstraint(Sketcher.Constraint("Vertical", 2))
sketch7.addConstraint(Sketcher.Constraint("Horizontal", 3))
sketch7.addConstraint(Sketcher.Constraint("Vertical", 4))
sketch7.addConstraint(Sketcher.Constraint("Horizontal", 5))
sketch7.addConstraint(Sketcher.Constraint("Vertical", 6))
sketch7.addConstraint(Sketcher.Constraint("Horizontal", 7))
sketch7.addConstraint(Sketcher.Constraint("Vertical", 2, 2, 4, 2))
sketch7.addConstraint(Sketcher.Constraint("Vertical", 3, 2, 5, 2))
sketch7.addConstraint(Sketcher.Constraint("Equal", 2, 4))
sketch7.addConstraint(Sketcher.Constraint("DistanceX", 1, 2, 1, 1, 6.0))
sketch7.addConstraint(Sketcher.Constraint("DistanceY", 0, 1, 0, 2, 3.0))
sketch7.addConstraint(Sketcher.Constraint("DistanceX", 0, 2, -1, 1, 126.0))
sketch7.addConstraint(Sketcher.Constraint("DistanceY", -1, 1, 0, 2, 30.0))
sketch7.addConstraint(Sketcher.Constraint("DistanceY", -1, 1, 4, 2, 60.0))
pocket6 = body.newObject("PartDesign::Pocket", "Pocket005")
pocket6.Profile = sketch7
pocket6.Type = "ThroughAll"

# Sketch on XZ plane
sketch8 = body.newObject("Sketcher::SketchObject", "Sketch007")
sketch8.AttachmentSupport = (doc.getObject("XZ_Plane"), [""])
sketch8.MapMode = "FlatFace"
sketch8.addGeometry(Part.LineSegment(V(-97, 75, 0), V(-105, 75, 0)), False)
sketch8.addGeometry(Part.ArcOfCircle(Part.Circle(V(-105, 73, 0), V(0, 0, 1), 2), math.radians(90), math.radians(180)), False)
sketch8.addGeometry(Part.LineSegment(V(-107, 73, 0), V(-107, 65, 0)), False)
sketch8.addGeometry(Part.ArcOfCircle(Part.Circle(V(-105, 65, 0), V(0, 0, 1), 2), math.radians(180), math.radians(270)), False)
sketch8.addGeometry(Part.LineSegment(V(-105, 63, 0), V(-97, 63, 0)), False)
sketch8.addGeometry(Part.ArcOfCircle(Part.Circle(V(-97, 65, 0), V(0, 0, 1), 2), math.radians(-90), math.radians(0)), False)
sketch8.addGeometry(Part.LineSegment(V(-95, 65, 0), V(-95, 73, 0)), False)
sketch8.addGeometry(Part.ArcOfCircle(Part.Circle(V(-97, 73, 0), V(0, 0, 1), 2), math.radians(0), math.radians(90)), False)
sketch8.addGeometry(Part.LineSegment(V(-56, 63, 0), V(-48, 63, 0)), False)
sketch8.addGeometry(Part.ArcOfCircle(Part.Circle(V(-48, 65, 0), V(0, 0, 1), 2), math.radians(-90), math.radians(0)), False)
sketch8.addGeometry(Part.LineSegment(V(-46, 65, 0), V(-46, 73, 0)), False)
sketch8.addGeometry(Part.ArcOfCircle(Part.Circle(V(-48, 73, 0), V(0, 0, 1), 2), math.radians(0), math.radians(90)), False)
sketch8.addGeometry(Part.LineSegment(V(-48, 75, 0), V(-56, 75, 0)), False)
sketch8.addGeometry(Part.ArcOfCircle(Part.Circle(V(-56, 73, 0), V(0, 0, 1), 2), math.radians(90), math.radians(180)), False)
sketch8.addGeometry(Part.LineSegment(V(-58, 73, 0), V(-58, 65, 0)), False)
sketch8.addGeometry(Part.ArcOfCircle(Part.Circle(V(-56, 65, 0), V(0, 0, 1), 2), math.radians(180), math.radians(270)), False)
sketch8.addConstraint(Sketcher.Constraint("Tangent", 0, 2, 1, 1))
sketch8.addConstraint(Sketcher.Constraint("Tangent", 1, 2, 2, 1))
sketch8.addConstraint(Sketcher.Constraint("Tangent", 2, 2, 3, 1))
sketch8.addConstraint(Sketcher.Constraint("Tangent", 3, 2, 4, 1))
sketch8.addConstraint(Sketcher.Constraint("Tangent", 4, 2, 5, 1))
sketch8.addConstraint(Sketcher.Constraint("Tangent", 5, 2, 6, 1))
sketch8.addConstraint(Sketcher.Constraint("Tangent", 6, 2, 7, 1))
sketch8.addConstraint(Sketcher.Constraint("Tangent", 7, 2, 0, 1))
sketch8.addConstraint(Sketcher.Constraint("Tangent", 8, 2, 9, 1))
sketch8.addConstraint(Sketcher.Constraint("Tangent", 9, 2, 10, 1))
sketch8.addConstraint(Sketcher.Constraint("Tangent", 10, 2, 11, 1))
sketch8.addConstraint(Sketcher.Constraint("Tangent", 11, 2, 12, 1))
sketch8.addConstraint(Sketcher.Constraint("Tangent", 12, 2, 13, 1))
sketch8.addConstraint(Sketcher.Constraint("Tangent", 13, 2, 14, 1))
sketch8.addConstraint(Sketcher.Constraint("Tangent", 14, 2, 15, 1))
sketch8.addConstraint(Sketcher.Constraint("Tangent", 15, 2, 8, 1))
sketch8.addConstraint(Sketcher.Constraint("Horizontal", 0))
sketch8.addConstraint(Sketcher.Constraint("Vertical", 2))
sketch8.addConstraint(Sketcher.Constraint("Horizontal", 4))
sketch8.addConstraint(Sketcher.Constraint("Vertical", 6))
sketch8.addConstraint(Sketcher.Constraint("Horizontal", 8))
sketch8.addConstraint(Sketcher.Constraint("Vertical", 10))
sketch8.addConstraint(Sketcher.Constraint("Horizontal", 12))
sketch8.addConstraint(Sketcher.Constraint("Vertical", 14))
sketch8.addConstraint(Sketcher.Constraint("Equal", 1, 3))
sketch8.addConstraint(Sketcher.Constraint("Equal", 3, 5))
sketch8.addConstraint(Sketcher.Constraint("Equal", 5, 7))
sketch8.addConstraint(Sketcher.Constraint("Equal", 7, 9))
sketch8.addConstraint(Sketcher.Constraint("Equal", 9, 11))
sketch8.addConstraint(Sketcher.Constraint("Equal", 11, 13))
sketch8.addConstraint(Sketcher.Constraint("Equal", 13, 15))
sketch8.addConstraint(Sketcher.Constraint("Horizontal", 5, 3, 9, 3))
sketch8.addConstraint(Sketcher.Constraint("Horizontal", 7, 3, 11, 3))
sketch8.addConstraint(Sketcher.Constraint("Equal", 4, 8))
sketch8.addConstraint(Sketcher.Constraint("Equal", 12, 2))
sketch8.addConstraint(Sketcher.Constraint("Radius", 1, 2.0))
sketch8.addConstraint(Sketcher.Constraint("DistanceX", 0, 2, 0, 1, 8.0))
sketch8.addConstraint(Sketcher.Constraint("DistanceX", 1, 3, -1, 1, 105.0))
sketch8.addConstraint(Sketcher.Constraint("DistanceY", -1, 1, 1, 3, 73.0))
sketch8.addConstraint(Sketcher.Constraint("DistanceX", 9, 3, -1, 1, 48.0))
pocket7 = body.newObject("PartDesign::Pocket", "Pocket006")
pocket7.Profile = sketch8
pocket7.Type = "ThroughAll"

doc.recompute()
